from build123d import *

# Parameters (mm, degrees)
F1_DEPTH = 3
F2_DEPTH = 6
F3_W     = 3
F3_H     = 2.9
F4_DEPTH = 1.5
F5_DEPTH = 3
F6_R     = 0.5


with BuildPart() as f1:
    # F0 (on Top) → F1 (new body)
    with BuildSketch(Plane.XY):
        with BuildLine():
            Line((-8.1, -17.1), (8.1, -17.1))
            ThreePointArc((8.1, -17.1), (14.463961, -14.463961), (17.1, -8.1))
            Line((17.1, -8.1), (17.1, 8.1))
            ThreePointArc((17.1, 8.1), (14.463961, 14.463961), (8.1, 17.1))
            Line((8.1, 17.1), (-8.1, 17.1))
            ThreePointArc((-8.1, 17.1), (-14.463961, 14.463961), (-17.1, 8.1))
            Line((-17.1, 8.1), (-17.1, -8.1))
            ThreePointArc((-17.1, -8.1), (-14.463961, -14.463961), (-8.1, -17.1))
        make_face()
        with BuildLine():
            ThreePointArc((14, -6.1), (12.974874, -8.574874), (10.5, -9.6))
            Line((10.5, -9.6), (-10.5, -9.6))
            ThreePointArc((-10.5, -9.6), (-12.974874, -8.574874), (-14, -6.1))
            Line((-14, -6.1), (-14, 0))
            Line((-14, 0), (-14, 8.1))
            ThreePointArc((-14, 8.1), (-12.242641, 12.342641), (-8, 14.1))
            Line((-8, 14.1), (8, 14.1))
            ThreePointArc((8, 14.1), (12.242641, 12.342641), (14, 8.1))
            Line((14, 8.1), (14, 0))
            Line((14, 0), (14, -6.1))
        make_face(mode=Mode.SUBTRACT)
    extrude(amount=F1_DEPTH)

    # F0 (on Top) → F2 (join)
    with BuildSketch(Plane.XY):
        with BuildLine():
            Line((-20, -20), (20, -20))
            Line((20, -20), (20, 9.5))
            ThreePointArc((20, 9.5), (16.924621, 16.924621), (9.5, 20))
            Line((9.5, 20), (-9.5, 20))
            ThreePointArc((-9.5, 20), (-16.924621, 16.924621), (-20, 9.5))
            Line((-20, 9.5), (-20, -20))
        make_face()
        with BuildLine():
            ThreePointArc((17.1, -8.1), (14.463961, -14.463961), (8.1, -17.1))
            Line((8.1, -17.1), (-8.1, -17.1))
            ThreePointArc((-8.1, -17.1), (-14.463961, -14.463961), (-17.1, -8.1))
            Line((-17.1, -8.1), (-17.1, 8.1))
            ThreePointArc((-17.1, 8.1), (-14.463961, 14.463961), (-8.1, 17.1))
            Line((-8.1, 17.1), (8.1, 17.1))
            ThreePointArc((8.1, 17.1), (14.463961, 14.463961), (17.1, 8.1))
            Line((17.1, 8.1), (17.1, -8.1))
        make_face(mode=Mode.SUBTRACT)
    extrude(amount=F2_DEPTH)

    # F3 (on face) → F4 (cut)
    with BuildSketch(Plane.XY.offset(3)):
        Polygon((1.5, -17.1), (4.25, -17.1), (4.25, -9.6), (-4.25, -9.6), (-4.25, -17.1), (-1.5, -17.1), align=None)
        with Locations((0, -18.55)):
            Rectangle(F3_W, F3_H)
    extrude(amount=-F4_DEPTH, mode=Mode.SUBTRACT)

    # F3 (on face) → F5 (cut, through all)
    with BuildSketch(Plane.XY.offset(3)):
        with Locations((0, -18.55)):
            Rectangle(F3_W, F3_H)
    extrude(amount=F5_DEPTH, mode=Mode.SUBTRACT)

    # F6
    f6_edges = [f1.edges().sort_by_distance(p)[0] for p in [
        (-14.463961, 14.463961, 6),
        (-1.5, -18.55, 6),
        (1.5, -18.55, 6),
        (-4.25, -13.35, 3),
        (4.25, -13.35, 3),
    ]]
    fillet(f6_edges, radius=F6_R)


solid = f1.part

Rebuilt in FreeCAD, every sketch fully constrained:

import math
import FreeCAD as App
import Part
import Sketcher

V = App.Vector


def edges_at(feature, points):
    """Names of the edges that pass closest to the given points."""
    edges = feature.Shape.Edges
    near = lambda p: min(range(len(edges)), key=lambda i: edges[i].distToShape(Part.Vertex(*p))[0])
    return sorted({f"Edge{near(p) + 1}" for p in points})

doc = App.newDocument("Part")
params = doc.addObject("Spreadsheet::Sheet", "Params")
for row, (alias, value) in enumerate([
    ("sketch1_radius", "9 mm"),
    ("sketch1_radius2", "5.999999 mm"),
    ("sketch1_radius3", "3.499999 mm"),
    ("sketch1_width", "21 mm"),
    ("sketch1_width2", "16.2 mm"),
    ("pad1_length", "3 mm"),
    ("sketch2_radius", "9 mm"),
    ("sketch2_radius2", "10.500001 mm"),
    ("sketch2_width", "40 mm"),
    ("sketch2_width2", "16.2 mm"),
    ("sketch2_height", "29.5 mm"),
    ("pad2_length", "6 mm"),
    ("sketch3_width", "3 mm"),
    ("sketch3_width2", "8.5 mm"),
    ("sketch3_height", "7.5 mm"),
    ("sketch3_height2", "2.9 mm"),
    ("pocket1_length", "1.5 mm"),
    ("sketch4_width", "3 mm"),
    ("sketch4_height", "2.9 mm"),
    ("fillet_radius", "0.5 mm"),
], start=1):
    params.set(f"A{row}", alias)
    params.set(f"B{row}", "=" + value)
    params.setAlias(f"B{row}", alias)

body = doc.addObject("PartDesign::Body", "Body")

# Sketch on XY plane
sketch1 = doc.addObject("Sketcher::SketchObject", "Sketch")
body.addObject(sketch1)
sketch1.AttachmentSupport = (doc.XY_Plane, [""])
sketch1.MapMode = "FlatFace"
sketch1.addGeometry(Part.LineSegment(V(-8.1, -17.1, 0), V(8.1, -17.1, 0)), False)
sketch1.addGeometry(Part.ArcOfCircle(Part.Circle(V(8.1, -8.1, 0), V(0, 0, 1), 9), math.radians(-90), math.radians(0)), False)
sketch1.addGeometry(Part.LineSegment(V(17.1, -8.1, 0), V(17.1, 8.1, 0)), False)
sketch1.addGeometry(Part.ArcOfCircle(Part.Circle(V(8.1, 8.1, 0), V(0, 0, 1), 9), math.radians(0), math.radians(90)), False)
sketch1.addGeometry(Part.LineSegment(V(8.1, 17.1, 0), V(-8.1, 17.1, 0)), False)
sketch1.addGeometry(Part.ArcOfCircle(Part.Circle(V(-8.1, 8.1, 0), V(0, 0, 1), 9), math.radians(90), math.radians(180)), False)
sketch1.addGeometry(Part.LineSegment(V(-17.1, 8.1, 0), V(-17.1, -8.1, 0)), False)
sketch1.addGeometry(Part.ArcOfCircle(Part.Circle(V(-8.1, -8.1, 0), V(0, 0, 1), 9), math.radians(-180), math.radians(-90)), False)
sketch1.addGeometry(Part.LineSegment(V(14, 8.1, 0), V(14, -6.1, 0)), False)
sketch1.addGeometry(Part.ArcOfCircle(Part.Circle(V(10.5, -6.1, 0), V(0, 0, 1), 3.5), math.radians(-90), math.radians(0)), False)
sketch1.addGeometry(Part.LineSegment(V(10.5, -9.6, 0), V(-10.5, -9.6, 0)), False)
sketch1.addGeometry(Part.ArcOfCircle(Part.Circle(V(-10.5, -6.1, 0), V(0, 0, 1), 3.5), math.radians(180), math.radians(270)), False)
sketch1.addGeometry(Part.LineSegment(V(-14, -6.1, 0), V(-14, 8.1, 0)), False)
sketch1.addGeometry(Part.ArcOfCircle(Part.Circle(V(-8, 8.1, 0), V(0, 0, 1), 6), math.radians(90), math.radians(180)), False)
sketch1.addGeometry(Part.LineSegment(V(-8, 14.1, 0), V(8, 14.1, 0)), False)
sketch1.addGeometry(Part.ArcOfCircle(Part.Circle(V(8, 8.1, 0), V(0, 0, 1), 6), math.radians(0), math.radians(90)), False)
sketch1.addConstraint(Sketcher.Constraint("Tangent", 0, 2, 1, 1))
sketch1.addConstraint(Sketcher.Constraint("Tangent", 1, 2, 2, 1))
sketch1.addConstraint(Sketcher.Constraint("Tangent", 2, 2, 3, 1))
sketch1.addConstraint(Sketcher.Constraint("Tangent", 3, 2, 4, 1))
sketch1.addConstraint(Sketcher.Constraint("Tangent", 4, 2, 5, 1))
sketch1.addConstraint(Sketcher.Constraint("Tangent", 5, 2, 6, 1))
sketch1.addConstraint(Sketcher.Constraint("Tangent", 6, 2, 7, 1))
sketch1.addConstraint(Sketcher.Constraint("Tangent", 7, 2, 0, 1))
sketch1.addConstraint(Sketcher.Constraint("Tangent", 8, 2, 9, 2))
sketch1.addConstraint(Sketcher.Constraint("Tangent", 9, 1, 10, 1))
sketch1.addConstraint(Sketcher.Constraint("Tangent", 10, 2, 11, 2))
sketch1.addConstraint(Sketcher.Constraint("Tangent", 11, 1, 12, 1))
sketch1.addConstraint(Sketcher.Constraint("Tangent", 12, 2, 13, 2))
sketch1.addConstraint(Sketcher.Constraint("Tangent", 13, 1, 14, 1))
sketch1.addConstraint(Sketcher.Constraint("Tangent", 14, 2, 15, 2))
sketch1.addConstraint(Sketcher.Constraint("Tangent", 15, 1, 8, 1))
sketch1.addConstraint(Sketcher.Constraint("Horizontal", 0))
sketch1.addConstraint(Sketcher.Constraint("Vertical", 2))
sketch1.addConstraint(Sketcher.Constraint("Horizontal", 4))
sketch1.addConstraint(Sketcher.Constraint("Vertical", 6))
sketch1.addConstraint(Sketcher.Constraint("Vertical", 8))
sketch1.addConstraint(Sketcher.Constraint("Horizontal", 10))
sketch1.addConstraint(Sketcher.Constraint("Vertical", 12))
sketch1.addConstraint(Sketcher.Constraint("Horizontal", 14))
sketch1.addConstraint(Sketcher.Constraint("Equal", 1, 3))
sketch1.addConstraint(Sketcher.Constraint("Equal", 3, 5))
sketch1.addConstraint(Sketcher.Constraint("Equal", 5, 7))
sketch1.addConstraint(Sketcher.Constraint("Equal", 9, 11))
sketch1.addConstraint(Sketcher.Constraint("Equal", 13, 15))
sketch1.addConstraint(Sketcher.Constraint("Symmetric", 1, 3, 5, 3, -1, 1))
sketch1.addConstraint(Sketcher.Constraint("Horizontal", 5, 3, 13, 3))
sketch1.addConstraint(Sketcher.Constraint("Equal", 4, 2))
sketch1.addConstraint(Sketcher.Constraint("Radius", 1, 9.0))
sketch1.addConstraint(Sketcher.Constraint("Radius", 13, 5.999999))
sketch1.addConstraint(Sketcher.Constraint("Radius", 9, 3.499999))
sketch1.addConstraint(Sketcher.Constraint("DistanceX", 10, 2, 10, 1, 21.0))
sketch1.addConstraint(Sketcher.Constraint("DistanceX", 0, 1, 0, 2, 16.2))
sketch1.addConstraint(Sketcher.Constraint("DistanceY", 8, 2, 8, 1, 14.2))
sketch1.addConstraint(Sketcher.Constraint("DistanceX", 13, 3, -1, 1, 8.000001))
sketch1.setExpression("Constraints[32]", "Params.sketch1_radius")
sketch1.setExpression("Constraints[33]", "Params.sketch1_radius2")
sketch1.setExpression("Constraints[34]", "Params.sketch1_radius3")
sketch1.setExpression("Constraints[35]", "Params.sketch1_width")
sketch1.setExpression("Constraints[36]", "Params.sketch1_width2")
pad1 = doc.addObject("PartDesign::Pad", "Pad")
body.addObject(pad1)
pad1.Profile = sketch1
pad1.setExpression("Length", "Params.pad1_length")

# Sketch on XY plane
sketch2 = doc.addObject("Sketcher::SketchObject", "Sketch001")
body.addObject(sketch2)
sketch2.AttachmentSupport = (doc.XY_Plane, [""])
sketch2.MapMode = "FlatFace"
sketch2.addGeometry(Part.LineSegment(V(-20, -20, 0), V(20, -20, 0)), False)
sketch2.addGeometry(Part.LineSegment(V(20, -20, 0), V(20, 10, 0)), False)
sketch2.addGeometry(Part.ArcOfCircle(Part.Circle(V(9, 9, 0), V(0, 0, 1), 11), math.radians(0), math.radians(90)), False)
sketch2.addGeometry(Part.LineSegment(V(10, 20, 0), V(-10, 20, 0)), False)
sketch2.addGeometry(Part.ArcOfCircle(Part.Circle(V(-9, 9, 0), V(0, 0, 1), 11), math.radians(90), math.radians(180)), False)
sketch2.addGeometry(Part.LineSegment(V(-20, 10, 0), V(-20, -20, 0)), False)
sketch2.addGeometry(Part.LineSegment(V(17, 8, 0), V(17, -8, 0)), False)
sketch2.addGeometry(Part.ArcOfCircle(Part.Circle(V(8, -8, 0), V(0, 0, 1), 9), math.radians(-90), math.radians(0)), False)
sketch2.addGeometry(Part.LineSegment(V(8, -17, 0), V(-8, -17, 0)), False)
sketch2.addGeometry(Part.ArcOfCircle(Part.Circle(V(-8, -8, 0), V(0, 0, 1), 9), math.radians(-180), math.radians(-90)), False)
sketch2.addGeometry(Part.LineSegment(V(-17, -8, 0), V(-17, 8, 0)), False)
sketch2.addGeometry(Part.ArcOfCircle(Part.Circle(V(-8, 8, 0), V(0, 0, 1), 9), math.radians(90), math.radians(180)), False)
sketch2.addGeometry(Part.LineSegment(V(-8, 17, 0), V(8, 17, 0)), False)
sketch2.addGeometry(Part.ArcOfCircle(Part.Circle(V(8, 8, 0), V(0, 0, 1), 9), math.radians(0), math.radians(90)), False)
sketch2.addConstraint(Sketcher.Constraint("Coincident", 0, 2, 1, 1))
sketch2.addConstraint(Sketcher.Constraint("Tangent", 1, 2, 2, 1))
sketch2.addConstraint(Sketcher.Constraint("Tangent", 2, 2, 3, 1))
sketch2.addConstraint(Sketcher.Constraint("Tangent", 3, 2, 4, 1))
sketch2.addConstraint(Sketcher.Constraint("Tangent", 4, 2, 5, 1))
sketch2.addConstraint(Sketcher.Constraint("Coincident", 5, 2, 0, 1))
sketch2.addConstraint(Sketcher.Constraint("Tangent", 6, 2, 7, 2))
sketch2.addConstraint(Sketcher.Constraint("Tangent", 7, 1, 8, 1))
sketch2.addConstraint(Sketcher.Constraint("Tangent", 8, 2, 9, 2))
sketch2.addConstraint(Sketcher.Constraint("Tangent", 9, 1, 10, 1))
sketch2.addConstraint(Sketcher.Constraint("Tangent", 10, 2, 11, 2))
sketch2.addConstraint(Sketcher.Constraint("Tangent", 11, 1, 12, 1))
sketch2.addConstraint(Sketcher.Constraint("Tangent", 12, 2, 13, 2))
sketch2.addConstraint(Sketcher.Constraint("Tangent", 13, 1, 6, 1))
sketch2.addConstraint(Sketcher.Constraint("Horizontal", 0))
sketch2.addConstraint(Sketcher.Constraint("Vertical", 1))
sketch2.addConstraint(Sketcher.Constraint("Horizontal", 3))
sketch2.addConstraint(Sketcher.Constraint("Vertical", 5))
sketch2.addConstraint(Sketcher.Constraint("Vertical", 6))
sketch2.addConstraint(Sketcher.Constraint("Horizontal", 8))
sketch2.addConstraint(Sketcher.Constraint("Vertical", 10))
sketch2.addConstraint(Sketcher.Constraint("Horizontal", 12))
sketch2.addConstraint(Sketcher.Constraint("Equal", 2, 4))
sketch2.addConstraint(Sketcher.Constraint("Equal", 7, 9))
sketch2.addConstraint(Sketcher.Constraint("Equal", 9, 11))
sketch2.addConstraint(Sketcher.Constraint("Equal", 11, 13))
sketch2.addConstraint(Sketcher.Constraint("Symmetric", 7, 3, 11, 3, -1, 1))
sketch2.addConstraint(Sketcher.Constraint("Equal", 12, 6))
sketch2.addConstraint(Sketcher.Constraint("Radius", 7, 9.0))
sketch2.addConstraint(Sketcher.Constraint("Radius", 2, 10.500001))
sketch2.addConstraint(Sketcher.Constraint("DistanceX", 0, 1, 0, 2, 40.0))
sketch2.addConstraint(Sketcher.Constraint("DistanceX", 8, 2, 8, 1, 16.2))
sketch2.addConstraint(Sketcher.Constraint("DistanceY", 1, 1, 1, 2, 29.5))
sketch2.addConstraint(Sketcher.Constraint("DistanceX", -1, 1, 0, 2, 20.0))
sketch2.addConstraint(Sketcher.Constraint("DistanceY", 0, 2, -1, 1, 20.0))
sketch2.setExpression("Constraints[28]", "Params.sketch2_radius")
sketch2.setExpression("Constraints[29]", "Params.sketch2_radius2")
sketch2.setExpression("Constraints[30]", "Params.sketch2_width")
sketch2.setExpression("Constraints[31]", "Params.sketch2_width2")
sketch2.setExpression("Constraints[32]", "Params.sketch2_height")
pad2 = doc.addObject("PartDesign::Pad", "Pad001")
body.addObject(pad2)
pad2.Profile = sketch2
pad2.setExpression("Length", "Params.pad2_length")

# Sketch on XY plane
sketch3 = doc.addObject("Sketcher::SketchObject", "Sketch002")
body.addObject(sketch3)
sketch3.AttachmentSupport = (doc.XY_Plane, [""])
sketch3.MapMode = "FlatFace"
sketch3.AttachmentOffset = App.Placement(V(0, 0, 3), App.Rotation())
sketch3.addGeometry(Part.LineSegment(V(4.2, -17.1, 0), V(4.2, -9.6, 0)), False)
sketch3.addGeometry(Part.LineSegment(V(4.2, -9.6, 0), V(-4.2, -9.6, 0)), False)
sketch3.addGeometry(Part.LineSegment(V(-4.2, -9.6, 0), V(-4.2, -17.1, 0)), False)
sketch3.addGeometry(Part.LineSegment(V(-4.2, -17.1, 0), V(-1.5, -17.1, 0)), False)
sketch3.addGeometry(Part.LineSegment(V(-1.5, -17.1, 0), V(-1.5, -20, 0)), False)
sketch3.addGeometry(Part.LineSegment(V(-1.5, -20, 0), V(1.5, -20, 0)), False)
sketch3.addGeometry(Part.LineSegment(V(1.5, -20, 0), V(1.5, -17.1, 0)), False)
sketch3.addGeometry(Part.LineSegment(V(1.5, -17.1, 0), V(4.2, -17.1, 0)), False)
sketch3.addConstraint(Sketcher.Constraint("Coincident", 0, 2, 1, 1))
sketch3.addConstraint(Sketcher.Constraint("Coincident", 1, 2, 2, 1))
sketch3.addConstraint(Sketcher.Constraint("Coincident", 2, 2, 3, 1))
sketch3.addConstraint(Sketcher.Constraint("Coincident", 3, 2, 4, 1))
sketch3.addConstraint(Sketcher.Constraint("Coincident", 4, 2, 5, 1))
sketch3.addConstraint(Sketcher.Constraint("Coincident", 5, 2, 6, 1))
sketch3.addConstraint(Sketcher.Constraint("Coincident", 6, 2, 7, 1))
sketch3.addConstraint(Sketcher.Constraint("Coincident", 7, 2, 0, 1))
sketch3.addConstraint(Sketcher.Constraint("Vertical", 0))
sketch3.addConstraint(Sketcher.Constraint("Horizontal", 1))
sketch3.addConstraint(Sketcher.Constraint("Vertical", 2))
sketch3.addConstraint(Sketcher.Constraint("Horizontal", 3))
sketch3.addConstraint(Sketcher.Constraint("Vertical", 4))
sketch3.addConstraint(Sketcher.Constraint("Horizontal", 5))
sketch3.addConstraint(Sketcher.Constraint("Vertical", 6))
sketch3.addConstraint(Sketcher.Constraint("Horizontal", 7))
sketch3.addConstraint(Sketcher.Constraint("Symmetric", 3, 2, 6, 2, -2))
sketch3.addConstraint(Sketcher.Constraint("Equal", 3, 7))
sketch3.addConstraint(Sketcher.Constraint("DistanceX", 5, 1, 5, 2, 3.0))
sketch3.addConstraint(Sketcher.Constraint("DistanceX", 1, 2, 1, 1, 8.5))
sketch3.addConstraint(Sketcher.Constraint("DistanceY", 0, 1, 0, 2, 7.5))
sketch3.addConstraint(Sketcher.Constraint("DistanceY", 4, 2, 4, 1, 2.9))
sketch3.addConstraint(Sketcher.Constraint("DistanceY", 4, 2, -1, 1, 20.0))
sketch3.setExpression("Constraints[18]", "Params.sketch3_width")
sketch3.setExpression("Constraints[19]", "Params.sketch3_width2")
sketch3.setExpression("Constraints[20]", "Params.sketch3_height")
sketch3.setExpression("Constraints[21]", "Params.sketch3_height2")
pocket1 = doc.addObject("PartDesign::Pocket", "Pocket")
body.addObject(pocket1)
pocket1.Profile = sketch3
pocket1.setExpression("Length", "Params.pocket1_length")

# Sketch on XY plane
sketch4 = doc.addObject("Sketcher::SketchObject", "Sketch003")
body.addObject(sketch4)
sketch4.AttachmentSupport = (doc.XY_Plane, [""])
sketch4.MapMode = "FlatFace"
sketch4.AttachmentOffset = App.Placement(V(0, 0, 3), App.Rotation())
sketch4.addGeometry(Part.LineSegment(V(-1.5, -17.1, 0), V(-1.5, -20, 0)), False)
sketch4.addGeometry(Part.LineSegment(V(-1.5, -20, 0), V(1.5, -20, 0)), False)
sketch4.addGeometry(Part.LineSegment(V(1.5, -20, 0), V(1.5, -17.1, 0)), False)
sketch4.addGeometry(Part.LineSegment(V(1.5, -17.1, 0), V(-1.5, -17.1, 0)), False)
sketch4.addConstraint(Sketcher.Constraint("Coincident", 0, 2, 1, 1))
sketch4.addConstraint(Sketcher.Constraint("Coincident", 1, 2, 2, 1))
sketch4.addConstraint(Sketcher.Constraint("Coincident", 2, 2, 3, 1))
sketch4.addConstraint(Sketcher.Constraint("Coincident", 3, 2, 0, 1))
sketch4.addConstraint(Sketcher.Constraint("Vertical", 0))
sketch4.addConstraint(Sketcher.Constraint("Horizontal", 1))
sketch4.addConstraint(Sketcher.Constraint("Vertical", 2))
sketch4.addConstraint(Sketcher.Constraint("Horizontal", 3))
sketch4.addConstraint(Sketcher.Constraint("DistanceX", 1, 1, 1, 2, 3.0))
sketch4.addConstraint(Sketcher.Constraint("DistanceY", 0, 2, 0, 1, 2.9))
sketch4.addConstraint(Sketcher.Constraint("DistanceY", 0, 2, -1, 1, 20.0))
sketch4.addConstraint(Sketcher.Constraint("DistanceX", 0, 2, -1, 1, 1.5))
sketch4.setExpression("Constraints[8]", "Params.sketch4_width")
sketch4.setExpression("Constraints[9]", "Params.sketch4_height")
pocket2 = doc.addObject("PartDesign::Pocket", "Pocket001")
body.addObject(pocket2)
pocket2.Profile = sketch4
pocket2.Type = "ThroughAll"
pocket2.Reversed = True
doc.recompute()

fillet = doc.addObject("PartDesign::Fillet", "Fillet")
body.addObject(fillet)
fillet.Base = (pocket2, edges_at(pocket2, [
    (-14.464, 14.464, 6),
    (-1.5, -18.55, 6),
    (1.5, -18.55, 6),
    (-4.25, -13.35, 3),
    (4.25, -13.35, 3),
]))
fillet.setExpression("Radius", "Params.fillet_radius")

doc.recompute()
